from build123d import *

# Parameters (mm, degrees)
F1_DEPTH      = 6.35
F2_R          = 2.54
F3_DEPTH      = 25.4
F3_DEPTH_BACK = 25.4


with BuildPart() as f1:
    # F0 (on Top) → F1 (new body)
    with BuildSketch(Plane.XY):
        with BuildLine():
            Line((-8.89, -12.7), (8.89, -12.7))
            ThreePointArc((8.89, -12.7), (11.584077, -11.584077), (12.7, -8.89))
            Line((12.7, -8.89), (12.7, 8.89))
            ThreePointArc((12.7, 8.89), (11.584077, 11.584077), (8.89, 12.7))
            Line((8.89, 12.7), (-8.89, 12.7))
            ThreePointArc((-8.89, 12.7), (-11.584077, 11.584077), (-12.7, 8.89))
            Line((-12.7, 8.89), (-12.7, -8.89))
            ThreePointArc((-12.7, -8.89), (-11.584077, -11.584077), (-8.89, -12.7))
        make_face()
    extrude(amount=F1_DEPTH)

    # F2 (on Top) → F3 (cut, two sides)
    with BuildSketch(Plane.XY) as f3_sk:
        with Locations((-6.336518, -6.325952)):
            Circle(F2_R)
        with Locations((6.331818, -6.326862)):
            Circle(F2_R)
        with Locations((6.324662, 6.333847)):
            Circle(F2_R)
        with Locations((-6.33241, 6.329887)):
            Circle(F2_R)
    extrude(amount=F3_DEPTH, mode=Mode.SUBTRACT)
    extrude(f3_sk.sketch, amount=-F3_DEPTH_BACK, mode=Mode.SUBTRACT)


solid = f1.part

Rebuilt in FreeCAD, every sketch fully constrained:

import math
import FreeCAD as App
import Part
import Sketcher
Q = App.Units.Quantity

doc = App.newDocument("Part")
params = doc.addObject("Spreadsheet::Sheet", "Params")
for row, (alias, value) in enumerate([
    ("sketch1_radius", "0.15 in"),
    ("sketch1_width", "0.7 in"),
    ("pad1_length", "0.25 in"),
    ("sketch2_diameter", "0.2 in"),
], start=1):
    params.set(f"A{row}", alias)
    params.set(f"B{row}", "=" + value)
    params.setAlias(f"B{row}", alias)

body = doc.addObject("PartDesign::Body", "Body")

# Sketch on XY plane
sketch1 = body.newObject("Sketcher::SketchObject", "Sketch")
sketch1.AttachmentSupport = (doc.getObject("XY_Plane"), [""])
sketch1.MapMode = "FlatFace"
sketch1.addGeometry([
    Part.LineSegment(App.Vector(-8.89, -12.7, 0), App.Vector(8.89, -12.7, 0)),  # 0
    Part.ArcOfCircle(Part.Circle(App.Vector(8.890001, -8.890001, 0), App.Vector(0, 0, 1), 3.809999), math.radians(-90.000008), math.radians(0.000008)),  # 1
    Part.LineSegment(App.Vector(12.7, -8.89, 0), App.Vector(12.7, 8.89, 0)),  # 2
    Part.ArcOfCircle(Part.Circle(App.Vector(8.890001, 8.890001, 0), App.Vector(0, 0, 1), 3.809999), math.radians(-0.000008), math.radians(90.000008)),  # 3
    Part.LineSegment(App.Vector(8.89, 12.7, 0), App.Vector(-8.89, 12.7, 0)),  # 4
    Part.ArcOfCircle(Part.Circle(App.Vector(-8.890001, 8.890001, 0), App.Vector(0, 0, 1), 3.809999), math.radians(89.999992), math.radians(180.000008)),  # 5
    Part.LineSegment(App.Vector(-12.7, 8.89, 0), App.Vector(-12.7, -8.89, 0)),  # 6
    Part.ArcOfCircle(Part.Circle(App.Vector(-8.890001, -8.890001, 0), App.Vector(0, 0, 1), 3.809999), math.radians(179.999992), math.radians(270.000008)),  # 7
], False)
sketch1.addConstraint([
    Sketcher.Constraint("Tangent", 0, 2, 1, 1),
    Sketcher.Constraint("Tangent", 1, 2, 2, 1),
    Sketcher.Constraint("Tangent", 2, 2, 3, 1),
    Sketcher.Constraint("Tangent", 3, 2, 4, 1),
    Sketcher.Constraint("Tangent", 4, 2, 5, 1),
    Sketcher.Constraint("Tangent", 5, 2, 6, 1),
    Sketcher.Constraint("Tangent", 6, 2, 7, 1),
    Sketcher.Constraint("Tangent", 7, 2, 0, 1),
    Sketcher.Constraint("Horizontal", 0),
    Sketcher.Constraint("Vertical", 2),
    Sketcher.Constraint("Horizontal", 4),
    Sketcher.Constraint("Vertical", 6),
    Sketcher.Constraint("Equal", 1, 3),
    Sketcher.Constraint("Equal", 3, 5),
    Sketcher.Constraint("Equal", 5, 7),
    Sketcher.Constraint("Symmetric", 1, 3, 5, 3, -1, 1),
    Sketcher.Constraint("Equal", 4, 2),
    Sketcher.Constraint("Radius", 1, Q("0.15 in")),
    Sketcher.Constraint("DistanceX", 0, 1, 0, 2, Q("0.7 in")),
])
sketch1.setExpression("Constraints[17]", "Params.sketch1_radius")
sketch1.setExpression("Constraints[18]", "Params.sketch1_width")
pad1 = body.newObject("PartDesign::Pad", "Pad")
pad1.Profile = sketch1
pad1.setExpression("Length", "Params.pad1_length")

# Sketch on XY plane
sketch2 = body.newObject("Sketcher::SketchObject", "Sketch001")
sketch2.AttachmentSupport = (doc.getObject("XY_Plane"), [""])
sketch2.MapMode = "FlatFace"
sketch2.addGeometry([
    Part.Circle(App.Vector(-6.336518, -6.325952, 0), App.Vector(0, 0, 1), 2.54),
    Part.Circle(App.Vector(6.331818, -6.326862, 0), App.Vector(0, 0, 1), 2.54),
    Part.Circle(App.Vector(6.324662, 6.333847, 0), App.Vector(0, 0, 1), 2.54),
    Part.Circle(App.Vector(-6.33241, 6.329887, 0), App.Vector(0, 0, 1), 2.54),
], False)
sketch2.addConstraint([
    Sketcher.Constraint("Equal", 0, 1),
    Sketcher.Constraint("Equal", 1, 2),
    Sketcher.Constraint("Equal", 2, 3),
    Sketcher.Constraint("Diameter", 0, Q("0.2 in")),
    Sketcher.Constraint("DistanceY", 0, 3, 2, 3, Q("12.659799 mm")),
    Sketcher.Constraint("DistanceX", -1, 1, 1, 3, Q("6.331818 mm")),
    Sketcher.Constraint("DistanceX", 3, 3, -1, 1, Q("6.33241 mm")),
    Sketcher.Constraint("DistanceY", 1, 3, 0, 3, Q("0.00091 mm")),
    Sketcher.Constraint("DistanceX", 0, 3, 2, 3, Q("12.66118 mm")),
    Sketcher.Constraint("DistanceY", 0, 3, 3, 3, Q("12.655839 mm")),
    Sketcher.Constraint("DistanceX", 0, 3, -1, 1, Q("6.336518 mm")),
    Sketcher.Constraint("DistanceY", 0, 3, -1, 1, Q("6.325952 mm")),
])
sketch2.setExpression("Constraints[3]", "Params.sketch2_diameter")
pocket1 = body.newObject("PartDesign::Pocket", "Pocket")
pocket1.Profile = sketch2
pocket1.Type = "ThroughAll"
pocket1.Midplane = True

doc.recompute()
